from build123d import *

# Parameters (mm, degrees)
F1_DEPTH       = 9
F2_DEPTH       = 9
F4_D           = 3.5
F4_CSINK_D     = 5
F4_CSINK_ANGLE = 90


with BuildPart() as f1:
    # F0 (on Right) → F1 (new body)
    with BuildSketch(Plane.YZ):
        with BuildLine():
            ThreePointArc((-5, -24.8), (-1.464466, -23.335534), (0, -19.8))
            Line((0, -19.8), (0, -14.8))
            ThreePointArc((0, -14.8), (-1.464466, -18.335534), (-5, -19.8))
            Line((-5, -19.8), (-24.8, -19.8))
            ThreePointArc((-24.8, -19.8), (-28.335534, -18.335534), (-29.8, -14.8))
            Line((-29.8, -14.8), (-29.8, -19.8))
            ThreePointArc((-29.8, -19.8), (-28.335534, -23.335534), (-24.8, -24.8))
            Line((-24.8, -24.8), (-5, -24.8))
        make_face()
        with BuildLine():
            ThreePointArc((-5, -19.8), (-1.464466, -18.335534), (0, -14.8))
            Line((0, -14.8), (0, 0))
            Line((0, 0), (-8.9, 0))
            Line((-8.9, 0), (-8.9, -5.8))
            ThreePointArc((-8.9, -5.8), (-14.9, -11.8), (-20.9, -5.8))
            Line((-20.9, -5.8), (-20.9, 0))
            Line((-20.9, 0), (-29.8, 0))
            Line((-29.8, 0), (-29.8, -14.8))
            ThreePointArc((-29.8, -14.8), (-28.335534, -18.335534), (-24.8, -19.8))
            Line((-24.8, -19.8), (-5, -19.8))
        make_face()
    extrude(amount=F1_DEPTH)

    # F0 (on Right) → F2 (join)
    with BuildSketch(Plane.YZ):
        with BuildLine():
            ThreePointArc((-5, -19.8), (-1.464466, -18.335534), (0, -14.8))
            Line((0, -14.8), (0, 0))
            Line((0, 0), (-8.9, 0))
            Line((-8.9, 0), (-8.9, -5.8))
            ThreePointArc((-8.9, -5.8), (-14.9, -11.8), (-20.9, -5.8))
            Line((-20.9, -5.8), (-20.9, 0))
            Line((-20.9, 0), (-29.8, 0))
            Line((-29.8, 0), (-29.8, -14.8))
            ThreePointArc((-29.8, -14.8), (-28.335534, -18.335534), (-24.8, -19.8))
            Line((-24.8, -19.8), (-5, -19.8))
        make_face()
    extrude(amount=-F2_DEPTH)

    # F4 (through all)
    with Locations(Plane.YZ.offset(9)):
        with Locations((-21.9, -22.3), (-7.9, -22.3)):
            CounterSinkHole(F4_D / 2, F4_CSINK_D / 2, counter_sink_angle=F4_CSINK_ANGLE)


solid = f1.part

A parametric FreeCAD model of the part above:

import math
import FreeCAD as App
import Part
import Sketcher

V = App.Vector
Q = App.Units.Quantity

doc = App.newDocument("Part")
body = doc.addObject("PartDesign::Body", "Body")

sketch1 = doc.addObject("Sketcher::SketchObject", "Sketch")
body.addObject(sketch1)
sketch1.AttachmentSupport = (doc.YZ_Plane, [""])
sketch1.MapMode = "FlatFace"
sketch1.addGeometry(Part.ArcOfCircle(Part.Circle(V(-5, -19.8, 0), V(0, 0, 1), 5), math.radians(-90), math.radians(0)), False)
sketch1.addGeometry(Part.LineSegment(V(0, -19.8, 0), V(0, 0, 0)), False)
sketch1.addGeometry(Part.LineSegment(V(0, 0, 0), V(-8.9, 0, 0)), False)
sketch1.addGeometry(Part.LineSegment(V(-8.9, 0, 0), V(-8.9, -5.8, 0)), False)
sketch1.addGeometry(Part.ArcOfCircle(Part.Circle(V(-14.9, -5.8, 0), V(0, 0, 1), 6), math.radians(180), math.radians(360)), False)
sketch1.addGeometry(Part.LineSegment(V(-20.9, -5.8, 0), V(-20.9, 0, 0)), False)
sketch1.addGeometry(Part.LineSegment(V(-20.9, 0, 0), V(-29.8, 0, 0)), False)
sketch1.addGeometry(Part.LineSegment(V(-29.8, 0, 0), V(-29.8, -19.8, 0)), False)
sketch1.addGeometry(Part.ArcOfCircle(Part.Circle(V(-24.8, -19.8, 0), V(0, 0, 1), 5), math.radians(180), math.radians(270)), False)
sketch1.addGeometry(Part.LineSegment(V(-24.8, -24.8, 0), V(-5, -24.8, 0)), False)
sketch1.addConstraint(Sketcher.Constraint("Tangent", 0, 2, 1, 1))
sketch1.addConstraint(Sketcher.Constraint("Coincident", 1, 2, 2, 1))
sketch1.addConstraint(Sketcher.Constraint("Coincident", 2, 2, 3, 1))
sketch1.addConstraint(Sketcher.Constraint("Tangent", 3, 2, 4, 2))
sketch1.addConstraint(Sketcher.Constraint("Tangent", 4, 1, 5, 1))
sketch1.addConstraint(Sketcher.Constraint("Coincident", 5, 2, 6, 1))
sketch1.addConstraint(Sketcher.Constraint("Coincident", 6, 2, 7, 1))
sketch1.addConstraint(Sketcher.Constraint("Tangent", 7, 2, 8, 1))
sketch1.addConstraint(Sketcher.Constraint("Tangent", 8, 2, 9, 1))
sketch1.addConstraint(Sketcher.Constraint("Tangent", 9, 2, 0, 1))
sketch1.addConstraint(Sketcher.Constraint("Vertical", 1))
sketch1.addConstraint(Sketcher.Constraint("Horizontal", 2))
sketch1.addConstraint(Sketcher.Constraint("Vertical", 3))
sketch1.addConstraint(Sketcher.Constraint("Vertical", 5))
sketch1.addConstraint(Sketcher.Constraint("Horizontal", 6))
sketch1.addConstraint(Sketcher.Constraint("Vertical", 7))
sketch1.addConstraint(Sketcher.Constraint("Horizontal", 9))
sketch1.addConstraint(Sketcher.Constraint("Coincident", 1, 2, -1, 1))
sketch1.addConstraint(Sketcher.Constraint("Equal", 0, 8))
sketch1.addConstraint(Sketcher.Constraint("PointOnObject", 5, 2, -1))
sketch1.addConstraint(Sketcher.Constraint("Equal", 2, 6))
sketch1.addConstraint(Sketcher.Constraint("Equal", 9, 1))
sketch1.addConstraint(Sketcher.Constraint("Radius", 0, Q("5 mm")))
sketch1.addConstraint(Sketcher.Constraint("Radius", 4, Q("6 mm")))
sketch1.addConstraint(Sketcher.Constraint("DistanceX", 2, 2, 2, 1, Q("8.9 mm")))
sketch1.addConstraint(Sketcher.Constraint("DistanceY", 3, 2, 3, 1, Q("5.8 mm")))
pad1 = doc.addObject("PartDesign::Pad", "Pad")
body.addObject(pad1)
pad1.Profile = sketch1
pad1.Length = 9

sketch2 = doc.addObject("Sketcher::SketchObject", "Sketch001")
body.addObject(sketch2)
sketch2.AttachmentSupport = (doc.YZ_Plane, [""])
sketch2.MapMode = "FlatFace"
sketch2.addGeometry(Part.ArcOfCircle(Part.Circle(V(-5, -14.8, 0), V(0, 0, 1), 5), math.radians(-90), math.radians(0)), False)
sketch2.addGeometry(Part.LineSegment(V(0, -14.8, 0), V(0, 0, 0)), False)
sketch2.addGeometry(Part.LineSegment(V(0, 0, 0), V(-8.9, 0, 0)), False)
sketch2.addGeometry(Part.LineSegment(V(-8.9, 0, 0), V(-8.9, -5.8, 0)), False)
sketch2.addGeometry(Part.ArcOfCircle(Part.Circle(V(-14.9, -5.8, 0), V(0, 0, 1), 6), math.radians(180), math.radians(360)), False)
sketch2.addGeometry(Part.LineSegment(V(-20.9, -5.8, 0), V(-20.9, 0, 0)), False)
sketch2.addGeometry(Part.LineSegment(V(-20.9, 0, 0), V(-29.8, 0, 0)), False)
sketch2.addGeometry(Part.LineSegment(V(-29.8, 0, 0), V(-29.8, -14.8, 0)), False)
sketch2.addGeometry(Part.ArcOfCircle(Part.Circle(V(-24.8, -14.8, 0), V(0, 0, 1), 5), math.radians(180), math.radians(270)), False)
sketch2.addGeometry(Part.LineSegment(V(-24.8, -19.8, 0), V(-5, -19.8, 0)), False)
sketch2.addConstraint(Sketcher.Constraint("Tangent", 0, 2, 1, 1))
sketch2.addConstraint(Sketcher.Constraint("Coincident", 1, 2, 2, 1))
sketch2.addConstraint(Sketcher.Constraint("Coincident", 2, 2, 3, 1))
sketch2.addConstraint(Sketcher.Constraint("Tangent", 3, 2, 4, 2))
sketch2.addConstraint(Sketcher.Constraint("Tangent", 4, 1, 5, 1))
sketch2.addConstraint(Sketcher.Constraint("Coincident", 5, 2, 6, 1))
sketch2.addConstraint(Sketcher.Constraint("Coincident", 6, 2, 7, 1))
sketch2.addConstraint(Sketcher.Constraint("Tangent", 7, 2, 8, 1))
sketch2.addConstraint(Sketcher.Constraint("Tangent", 8, 2, 9, 1))
sketch2.addConstraint(Sketcher.Constraint("Tangent", 9, 2, 0, 1))
sketch2.addConstraint(Sketcher.Constraint("Vertical", 1))
sketch2.addConstraint(Sketcher.Constraint("Horizontal", 2))
sketch2.addConstraint(Sketcher.Constraint("Vertical", 3))
sketch2.addConstraint(Sketcher.Constraint("Vertical", 5))
sketch2.addConstraint(Sketcher.Constraint("Horizontal", 6))
sketch2.addConstraint(Sketcher.Constraint("Vertical", 7))
sketch2.addConstraint(Sketcher.Constraint("Horizontal", 9))
sketch2.addConstraint(Sketcher.Constraint("Coincident", 1, 2, -1, 1))
sketch2.addConstraint(Sketcher.Constraint("Equal", 0, 8))
sketch2.addConstraint(Sketcher.Constraint("PointOnObject", 5, 2, -1))
sketch2.addConstraint(Sketcher.Constraint("Equal", 2, 6))
sketch2.addConstraint(Sketcher.Constraint("Radius", 0, Q("5 mm")))
sketch2.addConstraint(Sketcher.Constraint("Radius", 4, Q("6 mm")))
sketch2.addConstraint(Sketcher.Constraint("DistanceX", 2, 2, 2, 1, Q("8.9 mm")))
sketch2.addConstraint(Sketcher.Constraint("DistanceY", 1, 1, 1, 2, Q("14.8 mm")))
sketch2.addConstraint(Sketcher.Constraint("DistanceY", 3, 2, 3, 1, Q("5.8 mm")))
pad2 = doc.addObject("PartDesign::Pad", "Pad001")
body.addObject(pad2)
pad2.Profile = sketch2
pad2.Length = 9
pad2.Reversed = True

sketch3 = doc.addObject("Sketcher::SketchObject", "Sketch002")
body.addObject(sketch3)
sketch3.AttachmentSupport = (doc.YZ_Plane, [""])
sketch3.MapMode = "FlatFace"
sketch3.AttachmentOffset = App.Placement(V(0, 0, 9), App.Rotation())
sketch3.addGeometry(Part.Circle(V(-21.9, -22.3, 0), V(0, 0, 1), 1.8), False)
sketch3.addGeometry(Part.Circle(V(-7.9, -22.3, 0), V(0, 0, 1), 1.8), False)
sketch3.addConstraint(Sketcher.Constraint("Equal", 0, 1))
sketch3.addConstraint(Sketcher.Constraint("Horizontal", 0, 3, 1, 3))
sketch3.addConstraint(Sketcher.Constraint("Diameter", 0, Q("3.5 mm")))
sketch3.addConstraint(Sketcher.Constraint("DistanceX", 0, 3, 1, 3, Q("14 mm")))
sketch3.addConstraint(Sketcher.Constraint("DistanceX", 0, 3, -1, 1, Q("21.9 mm")))
sketch3.addConstraint(Sketcher.Constraint("DistanceY", 0, 3, -1, 1, Q("22.3 mm")))
doc.recompute()
hole = doc.addObject("PartDesign::Hole", "Hole")
body.addObject(hole)
hole.Profile = sketch3
hole.ThreadType = "None"
hole.Diameter = 3.5
hole.DepthType = "ThroughAll"
hole.HoleCutType = "Countersink"
hole.HoleCutDiameter = 5
hole.HoleCutCountersinkAngle = 90

doc.recompute()
